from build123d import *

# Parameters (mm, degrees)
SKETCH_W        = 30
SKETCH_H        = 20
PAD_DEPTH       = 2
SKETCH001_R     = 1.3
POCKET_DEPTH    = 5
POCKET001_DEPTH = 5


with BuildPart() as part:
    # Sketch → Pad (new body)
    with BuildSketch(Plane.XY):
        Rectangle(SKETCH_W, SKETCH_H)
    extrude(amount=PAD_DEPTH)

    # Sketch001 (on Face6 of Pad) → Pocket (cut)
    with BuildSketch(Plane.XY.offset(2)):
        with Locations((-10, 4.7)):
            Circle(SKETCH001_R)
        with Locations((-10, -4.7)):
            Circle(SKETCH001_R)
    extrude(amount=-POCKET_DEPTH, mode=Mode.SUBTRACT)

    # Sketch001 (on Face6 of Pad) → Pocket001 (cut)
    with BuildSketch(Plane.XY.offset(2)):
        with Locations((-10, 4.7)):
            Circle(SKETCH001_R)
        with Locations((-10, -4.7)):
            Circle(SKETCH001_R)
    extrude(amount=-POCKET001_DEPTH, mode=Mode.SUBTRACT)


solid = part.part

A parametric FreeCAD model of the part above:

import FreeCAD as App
import Part
import Sketcher

V = App.Vector

doc = App.newDocument("Part")
body = doc.addObject("PartDesign::Body", "Body")

# Sketch on XY plane
sketch1 = body.newObject("Sketcher::SketchObject", "Sketch")
sketch1.AttachmentSupport = (doc.getObject("XY_Plane"), [""])
sketch1.MapMode = "FlatFace"
sketch1.addGeometry([
    Part.LineSegment(V(-15, 10, 0), V(-15, -10, 0)),
    Part.LineSegment(V(-15, -10, 0), V(15, -10, 0)),
    Part.LineSegment(V(15, -10, 0), V(15, 10, 0)),
    Part.LineSegment(V(15, 10, 0), V(-15, 10, 0)),
], False)
sketch1.addConstraint([
    Sketcher.Constraint("Coincident", 0, 2, 1, 1),
    Sketcher.Constraint("Coincident", 1, 2, 2, 1),
    Sketcher.Constraint("Coincident", 2, 2, 3, 1),
    Sketcher.Constraint("Coincident", 3, 2, 0, 1),
    Sketcher.Constraint("Vertical", 0),
    Sketcher.Constraint("Horizontal", 1),
    Sketcher.Constraint("Vertical", 2),
    Sketcher.Constraint("Horizontal", 3),
    Sketcher.Constraint("Symmetric", 0, 2, 2, 2, -1, 1),
    Sketcher.Constraint("DistanceX", 1, 1, 1, 2, 30.0),
    Sketcher.Constraint("DistanceY", 0, 2, 0, 1, 20.0),
])
pad1 = body.newObject("PartDesign::Pad", "Pad")
pad1.Profile = sketch1
pad1.Length = 2

# Sketch on XY plane
sketch2 = body.newObject("Sketcher::SketchObject", "Sketch001")
sketch2.AttachmentSupport = (doc.getObject("XY_Plane"), [""])
sketch2.MapMode = "FlatFace"
sketch2.AttachmentOffset = App.Placement(V(0, 0, 2), App.Rotation())
sketch2.addGeometry([
    Part.Circle(V(-10, 4.7, 0), V(0, 0, 1), 1.3),
    Part.Circle(V(-10, -4.7, 0), V(0, 0, 1), 1.3),
], False)
sketch2.addConstraint([
    Sketcher.Constraint("Equal", 0, 1),
    Sketcher.Constraint("Symmetric", 0, 3, 1, 3, -1),
    Sketcher.Constraint("Diameter", 0, 2.6),
    Sketcher.Constraint("DistanceX", 0, 3, -1, 1, 10.0),
    Sketcher.Constraint("DistanceY", -1, 1, 0, 3, 4.7),
])
pocket1 = body.newObject("PartDesign::Pocket", "Pocket")
pocket1.Profile = sketch2
pocket1.Length = 5

# Sketch on XY plane
sketch3 = body.newObject("Sketcher::SketchObject", "Sketch002")
sketch3.AttachmentSupport = (doc.getObject("XY_Plane"), [""])
sketch3.MapMode = "FlatFace"
sketch3.AttachmentOffset = App.Placement(V(0, 0, 2), App.Rotation())
sketch3.addGeometry([
    Part.Circle(V(-10, 4.7, 0), V(0, 0, 1), 1.3),
    Part.Circle(V(-10, -4.7, 0), V(0, 0, 1), 1.3),
], False)
sketch3.addConstraint([
    Sketcher.Constraint("Equal", 0, 1),
    Sketcher.Constraint("Symmetric", 0, 3, 1, 3, -1),
    Sketcher.Constraint("Diameter", 0, 2.6),
    Sketcher.Constraint("DistanceX", 0, 3, -1, 1, 10.0),
    Sketcher.Constraint("DistanceY", -1, 1, 0, 3, 4.7),
])
pocket2 = body.newObject("PartDesign::Pocket", "Pocket001")
pocket2.Profile = sketch3
pocket2.Length = 5

doc.recompute()
